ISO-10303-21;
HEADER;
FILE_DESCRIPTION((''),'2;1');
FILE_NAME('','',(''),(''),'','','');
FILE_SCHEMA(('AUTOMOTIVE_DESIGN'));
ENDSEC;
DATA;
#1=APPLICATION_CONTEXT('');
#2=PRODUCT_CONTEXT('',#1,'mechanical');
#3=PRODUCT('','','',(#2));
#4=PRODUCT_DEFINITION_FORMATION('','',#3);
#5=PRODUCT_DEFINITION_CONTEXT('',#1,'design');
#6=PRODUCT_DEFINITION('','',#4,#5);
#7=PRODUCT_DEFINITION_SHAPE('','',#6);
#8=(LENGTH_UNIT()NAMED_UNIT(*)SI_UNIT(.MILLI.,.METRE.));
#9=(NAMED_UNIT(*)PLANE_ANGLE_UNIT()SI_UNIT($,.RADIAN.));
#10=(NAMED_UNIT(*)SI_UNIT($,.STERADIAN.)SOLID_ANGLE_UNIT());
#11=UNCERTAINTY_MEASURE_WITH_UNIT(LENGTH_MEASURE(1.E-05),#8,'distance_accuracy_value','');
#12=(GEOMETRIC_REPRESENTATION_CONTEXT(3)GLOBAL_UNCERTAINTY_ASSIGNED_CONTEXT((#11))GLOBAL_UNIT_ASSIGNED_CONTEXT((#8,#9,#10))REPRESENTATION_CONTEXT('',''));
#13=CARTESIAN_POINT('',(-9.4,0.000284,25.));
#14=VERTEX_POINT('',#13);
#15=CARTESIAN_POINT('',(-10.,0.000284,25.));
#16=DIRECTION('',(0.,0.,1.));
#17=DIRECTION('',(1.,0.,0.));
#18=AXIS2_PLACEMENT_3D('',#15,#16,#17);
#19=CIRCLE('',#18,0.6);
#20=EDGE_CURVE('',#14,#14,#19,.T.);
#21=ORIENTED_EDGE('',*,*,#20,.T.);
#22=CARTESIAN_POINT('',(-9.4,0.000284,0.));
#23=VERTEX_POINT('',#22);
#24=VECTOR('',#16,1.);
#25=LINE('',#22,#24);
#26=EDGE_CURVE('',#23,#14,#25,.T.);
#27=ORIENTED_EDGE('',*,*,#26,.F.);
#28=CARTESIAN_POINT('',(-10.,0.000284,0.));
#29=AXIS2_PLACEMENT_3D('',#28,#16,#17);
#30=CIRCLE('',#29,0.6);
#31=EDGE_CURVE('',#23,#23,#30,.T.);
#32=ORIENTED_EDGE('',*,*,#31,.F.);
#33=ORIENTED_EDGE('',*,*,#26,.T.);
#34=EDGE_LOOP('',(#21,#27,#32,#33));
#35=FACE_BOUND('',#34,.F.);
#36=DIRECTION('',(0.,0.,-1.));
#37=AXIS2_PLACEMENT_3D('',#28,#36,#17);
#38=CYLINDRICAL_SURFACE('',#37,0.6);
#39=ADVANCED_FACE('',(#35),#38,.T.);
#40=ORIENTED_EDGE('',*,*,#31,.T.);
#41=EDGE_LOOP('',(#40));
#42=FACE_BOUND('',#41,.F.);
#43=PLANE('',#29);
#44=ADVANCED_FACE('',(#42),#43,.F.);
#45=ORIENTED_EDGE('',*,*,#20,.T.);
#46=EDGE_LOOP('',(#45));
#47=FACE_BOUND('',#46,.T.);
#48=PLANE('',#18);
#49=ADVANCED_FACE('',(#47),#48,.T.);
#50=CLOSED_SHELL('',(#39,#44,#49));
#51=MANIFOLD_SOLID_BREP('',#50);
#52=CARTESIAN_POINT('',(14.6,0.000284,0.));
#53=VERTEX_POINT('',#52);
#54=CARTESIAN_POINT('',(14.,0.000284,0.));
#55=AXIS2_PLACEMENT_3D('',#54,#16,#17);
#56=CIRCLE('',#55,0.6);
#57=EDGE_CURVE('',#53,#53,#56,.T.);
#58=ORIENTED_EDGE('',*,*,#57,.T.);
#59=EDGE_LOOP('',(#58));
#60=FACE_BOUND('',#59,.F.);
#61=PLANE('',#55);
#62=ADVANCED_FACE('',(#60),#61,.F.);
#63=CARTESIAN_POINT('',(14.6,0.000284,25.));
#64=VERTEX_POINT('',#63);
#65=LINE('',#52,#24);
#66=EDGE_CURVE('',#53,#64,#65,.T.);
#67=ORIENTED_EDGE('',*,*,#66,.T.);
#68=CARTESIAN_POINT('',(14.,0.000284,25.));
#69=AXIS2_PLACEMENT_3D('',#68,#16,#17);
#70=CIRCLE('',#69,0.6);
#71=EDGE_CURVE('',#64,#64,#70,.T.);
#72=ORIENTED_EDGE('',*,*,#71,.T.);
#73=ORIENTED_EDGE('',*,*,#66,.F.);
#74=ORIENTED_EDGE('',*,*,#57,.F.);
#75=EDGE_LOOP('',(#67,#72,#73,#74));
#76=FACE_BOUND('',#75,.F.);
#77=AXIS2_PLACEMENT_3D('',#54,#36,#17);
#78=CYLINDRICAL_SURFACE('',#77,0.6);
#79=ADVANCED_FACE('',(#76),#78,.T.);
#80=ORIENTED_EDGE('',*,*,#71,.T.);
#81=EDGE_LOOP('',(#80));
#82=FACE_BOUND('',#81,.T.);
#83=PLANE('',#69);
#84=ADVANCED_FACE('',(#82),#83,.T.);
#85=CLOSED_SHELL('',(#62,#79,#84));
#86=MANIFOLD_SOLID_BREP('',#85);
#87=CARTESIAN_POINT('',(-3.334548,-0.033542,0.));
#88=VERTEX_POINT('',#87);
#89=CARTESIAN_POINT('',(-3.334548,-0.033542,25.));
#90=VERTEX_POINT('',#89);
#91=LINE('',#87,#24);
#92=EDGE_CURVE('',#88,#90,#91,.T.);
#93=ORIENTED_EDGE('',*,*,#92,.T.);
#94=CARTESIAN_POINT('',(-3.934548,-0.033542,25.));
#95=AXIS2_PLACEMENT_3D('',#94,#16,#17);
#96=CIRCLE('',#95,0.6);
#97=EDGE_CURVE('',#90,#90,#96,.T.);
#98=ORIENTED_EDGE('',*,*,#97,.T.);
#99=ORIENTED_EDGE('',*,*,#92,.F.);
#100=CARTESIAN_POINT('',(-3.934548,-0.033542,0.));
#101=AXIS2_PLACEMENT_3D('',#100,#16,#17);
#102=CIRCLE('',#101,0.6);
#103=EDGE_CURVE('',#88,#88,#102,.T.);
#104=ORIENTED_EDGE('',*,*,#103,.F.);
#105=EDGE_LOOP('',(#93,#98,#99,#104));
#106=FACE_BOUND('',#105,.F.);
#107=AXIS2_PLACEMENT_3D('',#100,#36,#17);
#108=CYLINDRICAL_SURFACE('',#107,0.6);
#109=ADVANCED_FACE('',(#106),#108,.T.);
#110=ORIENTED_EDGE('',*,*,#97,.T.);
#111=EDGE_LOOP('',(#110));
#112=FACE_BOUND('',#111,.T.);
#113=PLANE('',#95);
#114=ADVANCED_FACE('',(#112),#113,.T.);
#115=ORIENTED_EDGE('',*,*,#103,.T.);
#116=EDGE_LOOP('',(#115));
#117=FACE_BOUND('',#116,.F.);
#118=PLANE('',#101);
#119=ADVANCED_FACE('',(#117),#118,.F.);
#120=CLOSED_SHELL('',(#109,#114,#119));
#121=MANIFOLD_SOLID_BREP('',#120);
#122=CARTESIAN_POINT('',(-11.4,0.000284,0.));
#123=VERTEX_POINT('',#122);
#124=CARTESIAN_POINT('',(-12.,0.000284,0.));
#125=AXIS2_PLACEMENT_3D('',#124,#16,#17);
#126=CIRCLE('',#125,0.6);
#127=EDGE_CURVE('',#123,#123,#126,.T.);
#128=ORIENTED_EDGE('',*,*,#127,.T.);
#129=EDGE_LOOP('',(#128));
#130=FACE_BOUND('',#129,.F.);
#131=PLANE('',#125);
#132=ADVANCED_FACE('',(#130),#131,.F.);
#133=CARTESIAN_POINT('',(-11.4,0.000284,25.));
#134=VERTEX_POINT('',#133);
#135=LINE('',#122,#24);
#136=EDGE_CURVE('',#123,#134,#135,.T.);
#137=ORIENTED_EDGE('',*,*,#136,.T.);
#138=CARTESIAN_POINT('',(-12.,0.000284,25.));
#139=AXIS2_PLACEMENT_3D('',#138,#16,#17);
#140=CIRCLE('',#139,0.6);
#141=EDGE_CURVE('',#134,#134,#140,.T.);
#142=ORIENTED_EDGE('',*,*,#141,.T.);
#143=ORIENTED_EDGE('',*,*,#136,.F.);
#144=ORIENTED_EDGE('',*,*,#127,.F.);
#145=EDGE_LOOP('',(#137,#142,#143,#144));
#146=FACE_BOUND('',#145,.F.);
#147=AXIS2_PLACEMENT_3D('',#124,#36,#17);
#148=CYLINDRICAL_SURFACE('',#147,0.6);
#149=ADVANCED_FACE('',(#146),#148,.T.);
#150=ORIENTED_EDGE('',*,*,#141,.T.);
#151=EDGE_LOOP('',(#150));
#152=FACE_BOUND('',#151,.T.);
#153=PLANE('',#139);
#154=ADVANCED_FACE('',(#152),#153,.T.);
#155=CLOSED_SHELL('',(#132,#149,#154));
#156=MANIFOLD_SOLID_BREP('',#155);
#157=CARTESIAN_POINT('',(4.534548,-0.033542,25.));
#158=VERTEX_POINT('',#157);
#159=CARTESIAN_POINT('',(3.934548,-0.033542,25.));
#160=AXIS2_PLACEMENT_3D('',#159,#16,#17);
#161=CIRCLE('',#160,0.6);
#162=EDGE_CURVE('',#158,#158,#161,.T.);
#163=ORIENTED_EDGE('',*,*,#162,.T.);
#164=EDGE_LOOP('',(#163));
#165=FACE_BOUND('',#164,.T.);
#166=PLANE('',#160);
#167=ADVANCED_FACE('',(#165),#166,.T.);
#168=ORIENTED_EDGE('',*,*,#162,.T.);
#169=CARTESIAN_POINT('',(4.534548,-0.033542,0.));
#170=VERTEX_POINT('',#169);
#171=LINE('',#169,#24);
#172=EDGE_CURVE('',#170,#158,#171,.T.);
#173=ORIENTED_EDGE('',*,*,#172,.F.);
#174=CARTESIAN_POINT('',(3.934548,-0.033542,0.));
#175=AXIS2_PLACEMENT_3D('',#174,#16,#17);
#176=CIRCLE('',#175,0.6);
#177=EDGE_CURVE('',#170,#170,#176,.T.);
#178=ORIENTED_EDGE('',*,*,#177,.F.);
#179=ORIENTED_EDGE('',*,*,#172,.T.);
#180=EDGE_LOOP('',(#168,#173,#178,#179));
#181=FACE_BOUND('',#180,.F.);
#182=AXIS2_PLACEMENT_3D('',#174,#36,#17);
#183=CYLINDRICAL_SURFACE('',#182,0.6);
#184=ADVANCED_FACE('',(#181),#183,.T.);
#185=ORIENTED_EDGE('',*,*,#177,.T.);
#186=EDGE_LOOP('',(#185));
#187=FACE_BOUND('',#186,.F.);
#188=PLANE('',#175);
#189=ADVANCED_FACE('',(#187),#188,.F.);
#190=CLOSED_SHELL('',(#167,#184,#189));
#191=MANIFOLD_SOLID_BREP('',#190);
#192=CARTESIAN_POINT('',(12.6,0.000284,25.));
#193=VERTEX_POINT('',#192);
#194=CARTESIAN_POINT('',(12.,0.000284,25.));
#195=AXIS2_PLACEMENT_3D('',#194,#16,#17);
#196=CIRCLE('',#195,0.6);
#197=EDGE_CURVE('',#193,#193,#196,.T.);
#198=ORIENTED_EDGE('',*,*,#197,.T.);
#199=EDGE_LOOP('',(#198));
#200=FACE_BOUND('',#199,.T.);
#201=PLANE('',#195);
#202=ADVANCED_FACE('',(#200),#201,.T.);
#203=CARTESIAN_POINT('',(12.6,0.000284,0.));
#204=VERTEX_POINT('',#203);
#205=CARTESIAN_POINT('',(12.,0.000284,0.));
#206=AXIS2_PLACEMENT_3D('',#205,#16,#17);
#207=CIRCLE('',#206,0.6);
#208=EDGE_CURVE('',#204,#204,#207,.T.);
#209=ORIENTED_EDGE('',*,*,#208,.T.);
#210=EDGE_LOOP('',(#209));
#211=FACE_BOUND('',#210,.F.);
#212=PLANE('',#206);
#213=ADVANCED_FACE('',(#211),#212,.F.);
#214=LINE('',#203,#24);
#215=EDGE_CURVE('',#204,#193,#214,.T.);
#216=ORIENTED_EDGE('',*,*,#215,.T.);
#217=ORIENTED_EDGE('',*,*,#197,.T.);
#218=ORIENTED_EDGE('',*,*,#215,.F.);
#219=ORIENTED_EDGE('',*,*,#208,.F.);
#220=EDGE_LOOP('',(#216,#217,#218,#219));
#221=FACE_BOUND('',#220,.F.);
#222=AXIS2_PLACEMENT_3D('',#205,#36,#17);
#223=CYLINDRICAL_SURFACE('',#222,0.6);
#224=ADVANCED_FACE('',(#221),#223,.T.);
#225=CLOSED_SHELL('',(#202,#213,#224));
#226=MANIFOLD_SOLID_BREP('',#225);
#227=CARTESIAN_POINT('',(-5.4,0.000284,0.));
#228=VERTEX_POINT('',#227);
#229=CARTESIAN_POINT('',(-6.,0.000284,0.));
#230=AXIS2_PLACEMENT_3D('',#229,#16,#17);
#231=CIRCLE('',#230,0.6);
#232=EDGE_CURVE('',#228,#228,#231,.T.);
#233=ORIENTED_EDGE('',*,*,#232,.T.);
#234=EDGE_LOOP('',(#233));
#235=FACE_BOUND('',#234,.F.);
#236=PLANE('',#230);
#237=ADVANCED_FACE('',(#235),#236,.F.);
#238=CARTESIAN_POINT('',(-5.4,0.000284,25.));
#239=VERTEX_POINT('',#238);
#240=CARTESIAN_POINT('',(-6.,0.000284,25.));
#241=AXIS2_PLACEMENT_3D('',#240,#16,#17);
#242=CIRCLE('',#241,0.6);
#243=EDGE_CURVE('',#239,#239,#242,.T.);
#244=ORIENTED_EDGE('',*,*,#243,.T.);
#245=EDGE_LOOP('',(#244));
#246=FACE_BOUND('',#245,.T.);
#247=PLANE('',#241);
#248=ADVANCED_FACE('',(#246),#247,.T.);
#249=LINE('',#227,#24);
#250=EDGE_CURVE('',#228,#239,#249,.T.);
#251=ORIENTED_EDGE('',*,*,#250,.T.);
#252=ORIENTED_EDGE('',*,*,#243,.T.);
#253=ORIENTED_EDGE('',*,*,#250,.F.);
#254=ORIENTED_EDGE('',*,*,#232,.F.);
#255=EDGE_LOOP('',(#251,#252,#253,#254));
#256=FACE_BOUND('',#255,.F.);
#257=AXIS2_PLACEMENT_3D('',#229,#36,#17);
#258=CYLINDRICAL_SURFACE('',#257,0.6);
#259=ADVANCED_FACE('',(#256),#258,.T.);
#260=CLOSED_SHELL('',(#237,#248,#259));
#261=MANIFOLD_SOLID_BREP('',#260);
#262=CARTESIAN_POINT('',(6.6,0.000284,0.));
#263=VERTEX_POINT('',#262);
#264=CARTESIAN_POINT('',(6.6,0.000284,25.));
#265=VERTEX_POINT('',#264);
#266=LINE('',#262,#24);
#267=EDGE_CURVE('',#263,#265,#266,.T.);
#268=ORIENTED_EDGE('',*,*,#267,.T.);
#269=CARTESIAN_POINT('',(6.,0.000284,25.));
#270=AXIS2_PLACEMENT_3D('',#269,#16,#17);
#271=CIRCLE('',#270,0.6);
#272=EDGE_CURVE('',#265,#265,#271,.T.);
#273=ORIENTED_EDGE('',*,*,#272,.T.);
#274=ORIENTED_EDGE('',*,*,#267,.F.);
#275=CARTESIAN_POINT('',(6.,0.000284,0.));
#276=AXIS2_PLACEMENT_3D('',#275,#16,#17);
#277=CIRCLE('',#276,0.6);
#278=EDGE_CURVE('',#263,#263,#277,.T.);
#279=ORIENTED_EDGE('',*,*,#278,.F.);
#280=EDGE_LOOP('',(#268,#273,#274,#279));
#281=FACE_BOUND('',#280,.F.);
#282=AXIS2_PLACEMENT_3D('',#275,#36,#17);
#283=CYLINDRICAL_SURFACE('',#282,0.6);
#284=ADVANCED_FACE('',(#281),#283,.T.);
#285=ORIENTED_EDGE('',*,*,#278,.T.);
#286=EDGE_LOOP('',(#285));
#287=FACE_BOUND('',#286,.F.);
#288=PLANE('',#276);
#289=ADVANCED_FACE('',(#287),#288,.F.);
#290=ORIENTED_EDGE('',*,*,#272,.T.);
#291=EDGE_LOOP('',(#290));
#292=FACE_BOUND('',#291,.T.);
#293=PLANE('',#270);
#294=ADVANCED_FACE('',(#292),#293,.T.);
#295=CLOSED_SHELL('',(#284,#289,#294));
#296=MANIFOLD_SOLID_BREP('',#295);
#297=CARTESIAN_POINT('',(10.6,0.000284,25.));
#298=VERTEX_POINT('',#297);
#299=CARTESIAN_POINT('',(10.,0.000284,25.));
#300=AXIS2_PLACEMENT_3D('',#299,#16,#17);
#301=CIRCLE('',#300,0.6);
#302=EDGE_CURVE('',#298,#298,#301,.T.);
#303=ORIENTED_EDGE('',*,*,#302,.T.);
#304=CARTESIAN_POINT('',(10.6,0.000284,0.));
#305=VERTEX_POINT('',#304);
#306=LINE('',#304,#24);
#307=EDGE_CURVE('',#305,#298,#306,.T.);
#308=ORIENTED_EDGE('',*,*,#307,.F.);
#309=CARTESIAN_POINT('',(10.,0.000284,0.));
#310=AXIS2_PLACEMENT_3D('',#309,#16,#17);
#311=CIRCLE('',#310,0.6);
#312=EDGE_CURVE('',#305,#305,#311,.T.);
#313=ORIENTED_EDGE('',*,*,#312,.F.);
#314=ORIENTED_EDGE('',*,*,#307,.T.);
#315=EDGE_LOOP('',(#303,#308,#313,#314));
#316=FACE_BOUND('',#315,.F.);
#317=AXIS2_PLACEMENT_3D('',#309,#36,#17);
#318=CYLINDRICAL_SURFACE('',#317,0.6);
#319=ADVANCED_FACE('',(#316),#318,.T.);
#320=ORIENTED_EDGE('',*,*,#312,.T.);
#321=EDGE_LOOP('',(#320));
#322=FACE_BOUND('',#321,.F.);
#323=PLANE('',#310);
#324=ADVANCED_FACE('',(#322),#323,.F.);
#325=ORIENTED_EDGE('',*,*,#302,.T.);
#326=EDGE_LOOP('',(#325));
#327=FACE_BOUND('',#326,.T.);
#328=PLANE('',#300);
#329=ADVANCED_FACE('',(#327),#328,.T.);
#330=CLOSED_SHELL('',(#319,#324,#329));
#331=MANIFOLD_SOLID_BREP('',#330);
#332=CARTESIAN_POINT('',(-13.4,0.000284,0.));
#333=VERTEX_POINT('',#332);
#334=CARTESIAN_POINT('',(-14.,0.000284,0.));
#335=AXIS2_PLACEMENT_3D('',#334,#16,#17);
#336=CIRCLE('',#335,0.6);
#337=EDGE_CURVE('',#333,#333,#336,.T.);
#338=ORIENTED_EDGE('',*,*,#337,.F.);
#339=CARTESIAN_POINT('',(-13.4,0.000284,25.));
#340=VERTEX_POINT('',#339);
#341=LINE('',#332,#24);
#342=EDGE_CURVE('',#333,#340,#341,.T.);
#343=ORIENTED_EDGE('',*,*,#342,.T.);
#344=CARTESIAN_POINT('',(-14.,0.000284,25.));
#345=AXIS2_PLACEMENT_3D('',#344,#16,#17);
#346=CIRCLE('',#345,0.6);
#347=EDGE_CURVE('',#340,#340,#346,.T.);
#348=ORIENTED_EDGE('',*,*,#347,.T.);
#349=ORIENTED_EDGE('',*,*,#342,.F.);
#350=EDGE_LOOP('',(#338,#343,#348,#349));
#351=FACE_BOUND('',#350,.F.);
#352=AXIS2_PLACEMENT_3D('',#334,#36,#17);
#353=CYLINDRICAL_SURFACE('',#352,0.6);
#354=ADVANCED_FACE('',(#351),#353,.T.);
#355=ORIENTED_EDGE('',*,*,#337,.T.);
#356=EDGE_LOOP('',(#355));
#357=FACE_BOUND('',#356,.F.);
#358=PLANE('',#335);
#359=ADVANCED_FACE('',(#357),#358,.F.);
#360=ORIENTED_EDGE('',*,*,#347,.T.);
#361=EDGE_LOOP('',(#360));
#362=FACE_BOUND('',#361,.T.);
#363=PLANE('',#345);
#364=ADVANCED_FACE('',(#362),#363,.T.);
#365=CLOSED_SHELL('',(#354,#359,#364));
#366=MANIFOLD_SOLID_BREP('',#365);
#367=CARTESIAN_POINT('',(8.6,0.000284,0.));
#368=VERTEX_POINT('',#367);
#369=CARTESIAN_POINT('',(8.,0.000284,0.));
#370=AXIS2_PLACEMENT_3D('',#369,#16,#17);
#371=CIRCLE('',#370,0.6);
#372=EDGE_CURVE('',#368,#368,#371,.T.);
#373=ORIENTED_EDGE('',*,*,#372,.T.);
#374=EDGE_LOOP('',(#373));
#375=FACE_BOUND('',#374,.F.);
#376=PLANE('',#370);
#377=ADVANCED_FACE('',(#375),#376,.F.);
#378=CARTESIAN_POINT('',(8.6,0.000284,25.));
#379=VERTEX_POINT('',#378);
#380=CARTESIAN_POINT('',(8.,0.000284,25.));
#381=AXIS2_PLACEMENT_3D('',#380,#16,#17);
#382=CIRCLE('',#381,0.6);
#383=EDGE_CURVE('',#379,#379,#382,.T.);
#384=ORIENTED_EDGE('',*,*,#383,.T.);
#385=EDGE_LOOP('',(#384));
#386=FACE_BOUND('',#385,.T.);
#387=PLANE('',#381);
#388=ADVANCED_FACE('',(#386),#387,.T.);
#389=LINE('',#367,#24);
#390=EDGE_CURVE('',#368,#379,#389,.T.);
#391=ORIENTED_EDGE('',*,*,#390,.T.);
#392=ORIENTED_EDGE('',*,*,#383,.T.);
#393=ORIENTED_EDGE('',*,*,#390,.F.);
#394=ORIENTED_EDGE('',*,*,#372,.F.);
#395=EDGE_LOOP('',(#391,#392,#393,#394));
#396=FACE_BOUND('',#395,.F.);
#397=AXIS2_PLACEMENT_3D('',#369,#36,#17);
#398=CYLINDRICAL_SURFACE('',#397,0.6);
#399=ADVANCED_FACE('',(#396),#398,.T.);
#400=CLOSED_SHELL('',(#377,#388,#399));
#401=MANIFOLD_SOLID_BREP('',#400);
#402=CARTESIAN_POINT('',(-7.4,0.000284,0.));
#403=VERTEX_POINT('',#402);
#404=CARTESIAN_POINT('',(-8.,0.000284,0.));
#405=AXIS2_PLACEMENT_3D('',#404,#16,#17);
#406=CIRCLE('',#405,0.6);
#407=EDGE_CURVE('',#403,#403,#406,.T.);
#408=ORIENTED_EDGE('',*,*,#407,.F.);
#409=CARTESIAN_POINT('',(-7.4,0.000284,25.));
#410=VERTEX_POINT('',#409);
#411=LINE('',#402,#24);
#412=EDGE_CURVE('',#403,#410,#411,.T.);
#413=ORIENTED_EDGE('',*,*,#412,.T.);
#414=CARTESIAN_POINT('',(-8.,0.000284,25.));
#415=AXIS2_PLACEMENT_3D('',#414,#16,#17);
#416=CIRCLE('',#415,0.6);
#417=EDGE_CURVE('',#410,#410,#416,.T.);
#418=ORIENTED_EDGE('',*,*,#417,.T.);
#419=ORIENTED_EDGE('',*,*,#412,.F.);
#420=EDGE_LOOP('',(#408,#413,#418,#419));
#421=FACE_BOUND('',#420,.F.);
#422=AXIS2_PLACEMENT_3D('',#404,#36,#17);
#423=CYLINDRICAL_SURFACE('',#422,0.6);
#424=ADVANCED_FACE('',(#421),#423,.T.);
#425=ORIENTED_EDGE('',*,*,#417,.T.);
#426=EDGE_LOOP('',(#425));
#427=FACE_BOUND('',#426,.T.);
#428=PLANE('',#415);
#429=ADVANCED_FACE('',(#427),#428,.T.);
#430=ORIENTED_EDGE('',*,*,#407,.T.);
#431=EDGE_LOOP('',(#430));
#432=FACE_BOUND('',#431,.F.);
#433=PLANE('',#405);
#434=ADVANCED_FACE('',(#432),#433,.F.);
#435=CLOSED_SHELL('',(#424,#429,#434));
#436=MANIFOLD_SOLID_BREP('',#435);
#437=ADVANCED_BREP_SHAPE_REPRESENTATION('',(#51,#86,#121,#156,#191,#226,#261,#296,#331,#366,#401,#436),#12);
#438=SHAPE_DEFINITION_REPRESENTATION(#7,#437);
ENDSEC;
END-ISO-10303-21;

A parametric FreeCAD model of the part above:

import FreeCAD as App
import Part
import Sketcher
from FreeCAD import Vector
Q = App.Units.Quantity

doc = App.newDocument("Part")
body = doc.addObject("PartDesign::Body", "Body")
body.AllowCompound = True

# Sketch on XY plane
sketch1 = doc.addObject("Sketcher::SketchObject", "Sketch")
body.addObject(sketch1)
sketch1.AttachmentSupport = (doc.XY_Plane, [""])
sketch1.MapMode = "FlatFace"
sketch1.addGeometry([
    Part.Circle(Vector(6, 0, 0), Vector(0, 0, 1), 0.6),  # 0
    Part.Circle(Vector(8, 0, 0), Vector(0, 0, 1), 0.6),  # 1
    Part.Circle(Vector(10, 0, 0), Vector(0, 0, 1), 0.6),  # 2
    Part.Circle(Vector(12, 0, 0), Vector(0, 0, 1), 0.6),  # 3
    Part.Circle(Vector(14, 0, 0), Vector(0, 0, 1), 0.6),  # 4
    Part.Circle(Vector(3.9, 0, 0), Vector(0, 0, 1), 0.6),  # 5
    Part.Circle(Vector(-14, 0, 0), Vector(0, 0, 1), 0.6),  # 6
    Part.Circle(Vector(-12, 0, 0), Vector(0, 0, 1), 0.6),  # 7
    Part.Circle(Vector(-10, 0, 0), Vector(0, 0, 1), 0.6),  # 8
    Part.Circle(Vector(-8, 0, 0), Vector(0, 0, 1), 0.6),  # 9
    Part.Circle(Vector(-6, 0, 0), Vector(0, 0, 1), 0.6),  # 10
    Part.Circle(Vector(-3.9, 0, 0), Vector(0, 0, 1), 0.6),  # 11
], False)
sketch1.addConstraint([
    Sketcher.Constraint("Equal", 0, 1),
    Sketcher.Constraint("Equal", 1, 2),
    Sketcher.Constraint("Equal", 2, 3),
    Sketcher.Constraint("Equal", 3, 4),
    Sketcher.Constraint("Equal", 4, 5),
    Sketcher.Constraint("Equal", 5, 6),
    Sketcher.Constraint("Equal", 6, 7),
    Sketcher.Constraint("Equal", 7, 8),
    Sketcher.Constraint("Equal", 8, 9),
    Sketcher.Constraint("Equal", 9, 10),
    Sketcher.Constraint("Equal", 10, 11),
    Sketcher.Constraint("Symmetric", 4, 3, 6, 3, -2),
    Sketcher.Constraint("Symmetric", 3, 3, 7, 3, -2),
    Sketcher.Constraint("Symmetric", 2, 3, 8, 3, -2),
    Sketcher.Constraint("Symmetric", 1, 3, 9, 3, -2),
    Sketcher.Constraint("Symmetric", 0, 3, 10, 3, -2),
    Sketcher.Constraint("Symmetric", 5, 3, 11, 3, -2),
    Sketcher.Constraint("Horizontal", 0, 3, 1, 3),
    Sketcher.Constraint("Horizontal", 1, 3, 2, 3),
    Sketcher.Constraint("Horizontal", 2, 3, 3, 3),
    Sketcher.Constraint("Horizontal", 3, 3, 4, 3),
    Sketcher.Constraint("Diameter", 0, Q("1.2 mm")),
    Sketcher.Constraint("DistanceX", -1, 1, 0, 3, Q("6 mm")),
    Sketcher.Constraint("DistanceX", -1, 1, 1, 3, Q("8 mm")),
    Sketcher.Constraint("DistanceX", -1, 1, 2, 3, Q("10 mm")),
    Sketcher.Constraint("DistanceX", -1, 1, 3, 3, Q("12 mm")),
    Sketcher.Constraint("DistanceX", -1, 1, 4, 3, Q("14 mm")),
    Sketcher.Constraint("DistanceY", -1, 1, 0, 3, Q("0.000284 mm")),
    Sketcher.Constraint("DistanceX", -1, 1, 5, 3, Q("3.934548 mm")),
    Sketcher.Constraint("DistanceY", 5, 3, -1, 1, Q("0.033542 mm")),
])
pad1 = doc.addObject("PartDesign::Pad", "Pad")
body.addObject(pad1)
pad1.Profile = sketch1
pad1.Length = 25

doc.recompute()
